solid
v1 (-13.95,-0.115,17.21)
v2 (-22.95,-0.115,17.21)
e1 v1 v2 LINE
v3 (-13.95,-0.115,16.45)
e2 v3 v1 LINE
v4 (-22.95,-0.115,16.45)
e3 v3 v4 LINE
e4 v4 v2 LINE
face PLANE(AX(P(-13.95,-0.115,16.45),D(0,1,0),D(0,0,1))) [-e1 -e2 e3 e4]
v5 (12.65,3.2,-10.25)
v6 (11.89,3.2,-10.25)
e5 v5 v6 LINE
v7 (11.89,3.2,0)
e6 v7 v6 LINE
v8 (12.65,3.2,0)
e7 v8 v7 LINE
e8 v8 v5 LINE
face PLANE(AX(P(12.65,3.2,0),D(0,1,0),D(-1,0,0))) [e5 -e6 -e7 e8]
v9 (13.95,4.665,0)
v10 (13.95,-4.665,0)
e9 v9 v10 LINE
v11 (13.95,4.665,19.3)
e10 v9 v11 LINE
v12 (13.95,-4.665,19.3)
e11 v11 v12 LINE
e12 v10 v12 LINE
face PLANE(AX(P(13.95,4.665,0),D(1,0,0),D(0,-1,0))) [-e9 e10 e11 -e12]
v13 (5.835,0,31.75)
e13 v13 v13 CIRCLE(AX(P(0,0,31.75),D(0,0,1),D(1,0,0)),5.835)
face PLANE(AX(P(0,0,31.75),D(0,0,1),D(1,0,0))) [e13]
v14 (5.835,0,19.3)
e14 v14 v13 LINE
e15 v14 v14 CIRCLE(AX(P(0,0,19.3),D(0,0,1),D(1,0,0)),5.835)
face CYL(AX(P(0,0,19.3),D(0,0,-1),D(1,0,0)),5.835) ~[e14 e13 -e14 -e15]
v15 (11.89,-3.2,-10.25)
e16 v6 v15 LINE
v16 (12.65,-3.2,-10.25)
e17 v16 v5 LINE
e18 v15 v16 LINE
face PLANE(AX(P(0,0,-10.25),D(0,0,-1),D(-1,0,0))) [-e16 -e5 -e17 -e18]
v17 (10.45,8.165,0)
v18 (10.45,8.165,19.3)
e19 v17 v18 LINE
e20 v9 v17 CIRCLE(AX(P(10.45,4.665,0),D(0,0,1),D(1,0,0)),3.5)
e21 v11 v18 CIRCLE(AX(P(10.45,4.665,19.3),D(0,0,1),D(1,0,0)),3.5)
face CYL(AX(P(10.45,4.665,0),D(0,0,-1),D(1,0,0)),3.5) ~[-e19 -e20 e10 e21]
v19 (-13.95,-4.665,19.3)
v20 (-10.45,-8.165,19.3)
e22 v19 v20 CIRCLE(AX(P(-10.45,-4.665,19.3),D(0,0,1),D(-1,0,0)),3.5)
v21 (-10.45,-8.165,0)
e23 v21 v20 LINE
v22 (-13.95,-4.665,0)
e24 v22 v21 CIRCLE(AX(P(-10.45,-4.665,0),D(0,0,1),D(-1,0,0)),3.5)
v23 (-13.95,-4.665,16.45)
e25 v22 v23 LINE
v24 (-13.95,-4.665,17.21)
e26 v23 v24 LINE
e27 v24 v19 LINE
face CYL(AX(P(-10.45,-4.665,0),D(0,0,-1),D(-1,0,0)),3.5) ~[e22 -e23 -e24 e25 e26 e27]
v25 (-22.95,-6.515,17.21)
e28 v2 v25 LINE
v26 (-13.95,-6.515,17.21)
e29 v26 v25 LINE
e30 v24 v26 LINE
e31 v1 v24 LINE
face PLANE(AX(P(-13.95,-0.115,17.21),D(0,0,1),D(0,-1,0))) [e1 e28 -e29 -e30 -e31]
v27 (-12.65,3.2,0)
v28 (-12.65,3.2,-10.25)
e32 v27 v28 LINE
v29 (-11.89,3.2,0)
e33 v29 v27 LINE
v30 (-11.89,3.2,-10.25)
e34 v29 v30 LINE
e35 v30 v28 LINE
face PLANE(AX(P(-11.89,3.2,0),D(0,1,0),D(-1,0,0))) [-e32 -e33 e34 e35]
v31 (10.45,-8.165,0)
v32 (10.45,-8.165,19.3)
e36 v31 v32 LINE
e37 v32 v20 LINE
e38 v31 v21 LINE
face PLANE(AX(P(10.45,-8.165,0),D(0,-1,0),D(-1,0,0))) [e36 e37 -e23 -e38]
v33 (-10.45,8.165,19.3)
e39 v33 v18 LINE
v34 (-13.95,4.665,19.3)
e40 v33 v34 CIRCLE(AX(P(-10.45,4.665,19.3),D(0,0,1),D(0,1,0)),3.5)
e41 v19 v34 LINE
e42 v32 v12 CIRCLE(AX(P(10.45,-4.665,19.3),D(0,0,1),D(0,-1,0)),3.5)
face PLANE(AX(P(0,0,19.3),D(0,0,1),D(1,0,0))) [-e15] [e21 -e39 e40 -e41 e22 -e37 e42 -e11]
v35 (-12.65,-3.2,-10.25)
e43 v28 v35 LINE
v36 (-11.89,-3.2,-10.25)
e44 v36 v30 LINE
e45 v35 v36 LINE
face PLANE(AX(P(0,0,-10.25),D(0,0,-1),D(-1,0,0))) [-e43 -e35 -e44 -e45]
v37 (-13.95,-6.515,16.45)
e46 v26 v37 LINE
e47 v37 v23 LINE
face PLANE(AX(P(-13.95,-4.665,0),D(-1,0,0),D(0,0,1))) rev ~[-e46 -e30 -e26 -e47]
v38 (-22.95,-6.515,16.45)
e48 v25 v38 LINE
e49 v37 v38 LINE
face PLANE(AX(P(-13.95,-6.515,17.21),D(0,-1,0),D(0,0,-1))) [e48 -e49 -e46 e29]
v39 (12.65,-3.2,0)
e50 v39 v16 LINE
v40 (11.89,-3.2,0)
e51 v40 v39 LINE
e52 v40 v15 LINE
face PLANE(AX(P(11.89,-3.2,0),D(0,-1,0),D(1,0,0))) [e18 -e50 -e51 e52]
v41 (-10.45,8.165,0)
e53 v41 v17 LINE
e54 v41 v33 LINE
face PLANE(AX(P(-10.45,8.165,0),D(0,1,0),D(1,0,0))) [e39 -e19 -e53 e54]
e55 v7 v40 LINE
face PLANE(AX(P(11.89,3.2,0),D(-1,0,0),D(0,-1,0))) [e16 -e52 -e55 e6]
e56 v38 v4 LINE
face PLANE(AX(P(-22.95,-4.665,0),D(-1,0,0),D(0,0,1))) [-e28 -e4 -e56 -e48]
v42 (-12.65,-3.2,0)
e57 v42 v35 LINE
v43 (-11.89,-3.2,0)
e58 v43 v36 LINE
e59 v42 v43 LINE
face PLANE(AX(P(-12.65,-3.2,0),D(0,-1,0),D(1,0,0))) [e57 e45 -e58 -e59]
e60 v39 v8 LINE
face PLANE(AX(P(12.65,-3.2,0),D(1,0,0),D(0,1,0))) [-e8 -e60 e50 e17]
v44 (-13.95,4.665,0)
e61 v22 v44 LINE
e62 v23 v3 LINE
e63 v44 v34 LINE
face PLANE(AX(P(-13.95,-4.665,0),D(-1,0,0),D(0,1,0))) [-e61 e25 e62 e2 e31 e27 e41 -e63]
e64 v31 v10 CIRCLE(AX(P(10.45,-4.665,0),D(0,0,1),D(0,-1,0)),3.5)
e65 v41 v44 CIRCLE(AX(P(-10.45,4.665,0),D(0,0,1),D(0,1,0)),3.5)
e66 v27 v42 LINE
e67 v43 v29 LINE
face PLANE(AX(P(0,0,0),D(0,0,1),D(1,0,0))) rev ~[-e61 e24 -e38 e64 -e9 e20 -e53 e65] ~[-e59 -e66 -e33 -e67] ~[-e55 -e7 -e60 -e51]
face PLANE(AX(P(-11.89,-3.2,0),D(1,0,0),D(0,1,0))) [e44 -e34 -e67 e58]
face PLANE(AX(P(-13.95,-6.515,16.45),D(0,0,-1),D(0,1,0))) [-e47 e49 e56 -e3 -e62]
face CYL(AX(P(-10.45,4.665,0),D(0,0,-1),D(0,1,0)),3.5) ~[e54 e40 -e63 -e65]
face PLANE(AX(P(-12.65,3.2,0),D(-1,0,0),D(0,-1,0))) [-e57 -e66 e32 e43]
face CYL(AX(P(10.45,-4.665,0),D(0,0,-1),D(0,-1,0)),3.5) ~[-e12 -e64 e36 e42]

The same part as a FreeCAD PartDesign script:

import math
import FreeCAD as App
import Part
import Sketcher
Q = App.Units.Quantity


def add_polygon(sketch, points):
    """Adds a closed chain of lines whose ends are joined by coincident constraints."""
    first, n = sketch.GeometryCount, len(points)
    for a, b in zip(points, points[1:] + points[:1]):
        sketch.addGeometry(Part.LineSegment(App.Vector(*a, 0), App.Vector(*b, 0)), False)
    for i in range(n):
        sketch.addConstraint(Sketcher.Constraint("Coincident", first + i, 2, first + (i + 1) % n, 1))

doc = App.newDocument("Part")
body = doc.addObject("PartDesign::Body", "Body")

sketch1 = doc.addObject("Sketcher::SketchObject", "Sketch")
body.addObject(sketch1)
sketch1.AttachmentSupport = (doc.XY_Plane, [""])
sketch1.MapMode = "FlatFace"
sketch1.addGeometry([
    Part.LineSegment(App.Vector(10.45, 8.165, 0), App.Vector(-10.45, 8.165, 0)),
    Part.ArcOfCircle(Part.Circle(App.Vector(-10.45, 4.665, 0), App.Vector(0, 0, 1), 3.5), math.radians(90), math.radians(180)),
    Part.LineSegment(App.Vector(-13.95, 4.665, 0), App.Vector(-13.95, -4.665, 0)),
    Part.ArcOfCircle(Part.Circle(App.Vector(-10.45, -4.665, 0), App.Vector(0, 0, 1), 3.5), math.radians(180), math.radians(270)),
    Part.LineSegment(App.Vector(-10.45, -8.165, 0), App.Vector(10.45, -8.165, 0)),
    Part.ArcOfCircle(Part.Circle(App.Vector(10.45, -4.665, 0), App.Vector(0, 0, 1), 3.5), math.radians(-90), math.radians(0)),
    Part.LineSegment(App.Vector(13.95, -4.665, 0), App.Vector(13.95, 4.665, 0)),
    Part.ArcOfCircle(Part.Circle(App.Vector(10.45, 4.665, 0), App.Vector(0, 0, 1), 3.5), math.radians(0), math.radians(90)),
], False)
sketch1.addConstraint([
    Sketcher.Constraint("Tangent", 0, 2, 1, 1),
    Sketcher.Constraint("Tangent", 1, 2, 2, 1),
    Sketcher.Constraint("Tangent", 2, 2, 3, 1),
    Sketcher.Constraint("Tangent", 3, 2, 4, 1),
    Sketcher.Constraint("Tangent", 4, 2, 5, 1),
    Sketcher.Constraint("Tangent", 5, 2, 6, 1),
    Sketcher.Constraint("Tangent", 6, 2, 7, 1),
    Sketcher.Constraint("Tangent", 7, 2, 0, 1),
    Sketcher.Constraint("Horizontal", 0),
    Sketcher.Constraint("Vertical", 2),
    Sketcher.Constraint("Horizontal", 4),
    Sketcher.Constraint("Vertical", 6),
    Sketcher.Constraint("Equal", 1, 3),
    Sketcher.Constraint("Equal", 3, 5),
    Sketcher.Constraint("Equal", 5, 7),
    Sketcher.Constraint("Symmetric", 1, 3, 5, 3, -1, 1),
    Sketcher.Constraint("Radius", 1, Q("3.5 mm")),
    Sketcher.Constraint("DistanceY", 3, 2, 0, 2, Q("16.33 mm")),
    Sketcher.Constraint("DistanceX", 0, 2, 0, 1, Q("20.9 mm")),
])
pad1 = doc.addObject("PartDesign::Pad", "Pad")
body.addObject(pad1)
pad1.Profile = sketch1
pad1.Length = 19.3

sketch2 = doc.addObject("Sketcher::SketchObject", "Sketch001")
body.addObject(sketch2)
sketch2.AttachmentSupport = (doc.XY_Plane, [""])
sketch2.MapMode = "FlatFace"
sketch2.AttachmentOffset = App.Placement(App.Vector(0, 0, 19.3), App.Rotation())
sketch2.addGeometry(Part.Circle(App.Vector(0, 0, 0), App.Vector(0, 0, 1), 5.835), False)
sketch2.addConstraint([
    Sketcher.Constraint("Coincident", 0, 3, -1, 1),
    Sketcher.Constraint("Diameter", 0, Q("11.67 mm")),
])
pad2 = doc.addObject("PartDesign::Pad", "Pad001")
body.addObject(pad2)
pad2.Profile = sketch2
pad2.Length = 12.45

sketch3 = doc.addObject("Sketcher::SketchObject", "Sketch002")
body.addObject(sketch3)
sketch3.AttachmentSupport = (doc.XY_Plane, [""])
sketch3.MapMode = "FlatFace"
add_polygon(sketch3, [(-11.89, -3.2), (-12.65, -3.2), (-12.65, 3.2), (-11.89, 3.2)])
add_polygon(sketch3, [(12.65, -3.2), (11.89, -3.2), (11.89, 3.2), (12.65, 3.2)])
sketch3.addConstraint([
    Sketcher.Constraint("Horizontal", 0),
    Sketcher.Constraint("Vertical", 1),
    Sketcher.Constraint("Horizontal", 2),
    Sketcher.Constraint("Vertical", 3),
    Sketcher.Constraint("Horizontal", 4),
    Sketcher.Constraint("Vertical", 5),
    Sketcher.Constraint("Horizontal", 6),
    Sketcher.Constraint("Vertical", 7),
    Sketcher.Constraint("Symmetric", 2, 2, 4, 2, -1, 1),
    Sketcher.Constraint("Symmetric", 0, 2, 6, 2, -1, 1),
    Sketcher.Constraint("Horizontal", 3, 2, 4, 2),
    Sketcher.Constraint("DistanceY", 1, 1, 1, 2, Q("6.4 mm")),
    Sketcher.Constraint("DistanceX", 0, 2, 0, 1, Q("0.76 mm")),
    Sketcher.Constraint("DistanceX", 1, 2, 6, 2, Q("25.3 mm")),
])
pad3 = doc.addObject("PartDesign::Pad", "Pad002")
body.addObject(pad3)
pad3.Profile = sketch3
pad3.Length = 10.25
pad3.Reversed = True

sketch4 = doc.addObject("Sketcher::SketchObject", "Sketch003")
body.addObject(sketch4)
sketch4.AttachmentSupport = (doc.YZ_Plane, [""])
sketch4.MapMode = "FlatFace"
sketch4.AttachmentOffset = App.Placement(App.Vector(0, 0, -13.95), App.Rotation())
add_polygon(sketch4, [(-0.115, 17.21), (-0.115, 16.45), (-6.515, 16.45), (-6.515, 17.21)])
sketch4.addConstraint([
    Sketcher.Constraint("Vertical", 0),
    Sketcher.Constraint("Horizontal", 1),
    Sketcher.Constraint("Vertical", 2),
    Sketcher.Constraint("Horizontal", 3),
    Sketcher.Constraint("DistanceX", 1, 2, 1, 1, Q("6.4 mm")),
    Sketcher.Constraint("DistanceY", 0, 2, 0, 1, Q("0.76 mm")),
    Sketcher.Constraint("DistanceY", -1, 1, 0, 2, Q("16.45 mm")),
    Sketcher.Constraint("DistanceX", 0, 2, -1, 1, Q("0.115 mm")),
])
pad4 = doc.addObject("PartDesign::Pad", "Pad003")
body.addObject(pad4)
pad4.Profile = sketch4
pad4.Length = 9
pad4.Reversed = True

doc.recompute()
